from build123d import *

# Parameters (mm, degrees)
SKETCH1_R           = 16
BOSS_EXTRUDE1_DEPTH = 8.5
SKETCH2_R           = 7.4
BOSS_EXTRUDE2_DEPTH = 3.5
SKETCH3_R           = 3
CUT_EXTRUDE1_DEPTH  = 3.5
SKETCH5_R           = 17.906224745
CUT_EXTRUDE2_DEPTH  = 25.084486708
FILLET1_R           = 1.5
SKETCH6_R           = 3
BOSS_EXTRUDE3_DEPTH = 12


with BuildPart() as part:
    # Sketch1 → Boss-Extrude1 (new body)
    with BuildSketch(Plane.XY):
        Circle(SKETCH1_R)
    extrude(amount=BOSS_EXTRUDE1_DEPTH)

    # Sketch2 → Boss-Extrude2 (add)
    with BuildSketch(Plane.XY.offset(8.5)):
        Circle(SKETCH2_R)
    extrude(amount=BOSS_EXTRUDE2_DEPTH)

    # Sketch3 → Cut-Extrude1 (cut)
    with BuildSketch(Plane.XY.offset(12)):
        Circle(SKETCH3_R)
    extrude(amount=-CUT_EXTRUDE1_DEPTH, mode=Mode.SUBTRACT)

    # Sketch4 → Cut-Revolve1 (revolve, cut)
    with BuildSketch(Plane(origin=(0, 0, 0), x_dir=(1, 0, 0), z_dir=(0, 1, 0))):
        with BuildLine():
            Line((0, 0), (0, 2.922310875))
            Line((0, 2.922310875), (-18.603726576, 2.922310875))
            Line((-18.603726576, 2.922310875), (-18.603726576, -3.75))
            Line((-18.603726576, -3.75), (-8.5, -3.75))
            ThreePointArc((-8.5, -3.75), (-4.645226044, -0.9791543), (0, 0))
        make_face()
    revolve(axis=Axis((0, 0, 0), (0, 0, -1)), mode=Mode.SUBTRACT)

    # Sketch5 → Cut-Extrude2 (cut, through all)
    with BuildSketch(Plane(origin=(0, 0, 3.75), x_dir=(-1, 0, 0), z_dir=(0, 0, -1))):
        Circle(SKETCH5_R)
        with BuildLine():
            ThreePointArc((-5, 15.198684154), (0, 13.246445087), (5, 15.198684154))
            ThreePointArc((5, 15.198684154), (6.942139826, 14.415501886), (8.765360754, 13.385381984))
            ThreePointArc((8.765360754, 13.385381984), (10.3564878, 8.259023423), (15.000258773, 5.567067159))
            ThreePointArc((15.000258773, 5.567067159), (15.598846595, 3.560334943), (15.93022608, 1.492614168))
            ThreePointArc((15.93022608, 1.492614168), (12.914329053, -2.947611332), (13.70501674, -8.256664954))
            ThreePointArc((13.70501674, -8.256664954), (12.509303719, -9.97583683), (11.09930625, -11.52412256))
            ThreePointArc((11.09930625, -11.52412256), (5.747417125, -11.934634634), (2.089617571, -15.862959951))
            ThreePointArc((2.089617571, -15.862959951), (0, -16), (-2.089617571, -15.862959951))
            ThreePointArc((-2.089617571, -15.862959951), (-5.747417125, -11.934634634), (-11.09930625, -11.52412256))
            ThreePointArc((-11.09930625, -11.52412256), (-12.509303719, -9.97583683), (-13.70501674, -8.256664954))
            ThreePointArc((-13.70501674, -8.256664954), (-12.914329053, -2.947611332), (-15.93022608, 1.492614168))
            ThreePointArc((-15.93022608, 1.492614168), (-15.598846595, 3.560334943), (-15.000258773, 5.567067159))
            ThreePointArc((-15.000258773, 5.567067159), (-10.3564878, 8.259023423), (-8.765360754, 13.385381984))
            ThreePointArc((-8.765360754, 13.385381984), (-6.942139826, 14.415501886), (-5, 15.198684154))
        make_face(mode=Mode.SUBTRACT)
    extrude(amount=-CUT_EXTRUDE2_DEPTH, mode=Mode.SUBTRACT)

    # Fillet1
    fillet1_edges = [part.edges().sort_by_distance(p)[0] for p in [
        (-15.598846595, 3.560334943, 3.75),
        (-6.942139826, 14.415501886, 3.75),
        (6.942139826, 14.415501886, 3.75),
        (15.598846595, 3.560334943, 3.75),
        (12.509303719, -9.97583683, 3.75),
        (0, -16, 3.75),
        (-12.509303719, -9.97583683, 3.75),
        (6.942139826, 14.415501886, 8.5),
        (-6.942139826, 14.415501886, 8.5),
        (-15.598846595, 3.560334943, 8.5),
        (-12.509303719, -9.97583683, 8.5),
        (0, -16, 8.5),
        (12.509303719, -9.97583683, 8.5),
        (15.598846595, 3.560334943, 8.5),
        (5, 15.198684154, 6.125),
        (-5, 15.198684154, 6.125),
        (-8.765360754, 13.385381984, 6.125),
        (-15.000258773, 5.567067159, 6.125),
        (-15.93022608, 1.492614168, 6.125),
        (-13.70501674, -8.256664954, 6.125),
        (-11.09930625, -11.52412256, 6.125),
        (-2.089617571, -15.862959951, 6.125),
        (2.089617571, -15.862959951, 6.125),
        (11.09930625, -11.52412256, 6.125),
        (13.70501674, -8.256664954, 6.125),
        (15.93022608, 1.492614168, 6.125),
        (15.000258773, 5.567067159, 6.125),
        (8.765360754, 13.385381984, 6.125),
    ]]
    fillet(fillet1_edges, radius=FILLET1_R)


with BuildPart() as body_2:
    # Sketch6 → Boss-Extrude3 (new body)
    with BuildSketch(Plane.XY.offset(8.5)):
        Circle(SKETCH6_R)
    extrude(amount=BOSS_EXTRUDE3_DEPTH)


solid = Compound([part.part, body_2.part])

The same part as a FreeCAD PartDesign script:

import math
import FreeCAD as App
import Part
import Sketcher

V = App.Vector


def edges_at(feature, points):
    """Names of the edges that pass closest to the given points."""
    edges = feature.Shape.Edges
    near = lambda p: min(range(len(edges)), key=lambda i: edges[i].distToShape(Part.Vertex(*p))[0])
    return sorted({f"Edge{near(p) + 1}" for p in points})

doc = App.newDocument("Part")
body = doc.addObject("PartDesign::Body", "Body")

# Sketch on XY plane
sketch1 = body.newObject("Sketcher::SketchObject", "Sketch")
sketch1.AttachmentSupport = (doc.getObject("XY_Plane"), [""])
sketch1.MapMode = "FlatFace"
sketch1.addGeometry(Part.Circle(V(0, 0, 0), V(0, 0, 1), 16), False)
sketch1.addConstraint([
    Sketcher.Constraint("Coincident", 0, 3, -1, 1),
    Sketcher.Constraint("Diameter", 0, 32.0),
])
pad1 = body.newObject("PartDesign::Pad", "Pad")
pad1.Profile = sketch1
pad1.Length = 8.5

# Sketch on XY plane
sketch2 = body.newObject("Sketcher::SketchObject", "Sketch001")
sketch2.AttachmentSupport = (doc.getObject("XY_Plane"), [""])
sketch2.MapMode = "FlatFace"
sketch2.AttachmentOffset = App.Placement(V(0, 0, 8.5), App.Rotation())
sketch2.addGeometry(Part.Circle(V(0, 0, 0), V(0, 0, 1), 7), False)
sketch2.addConstraint([
    Sketcher.Constraint("Coincident", 0, 3, -1, 1),
    Sketcher.Constraint("Diameter", 0, 14.8),
])
pad2 = body.newObject("PartDesign::Pad", "Pad001")
pad2.Profile = sketch2
pad2.Length = 3.5

# Sketch on XY plane
sketch3 = body.newObject("Sketcher::SketchObject", "Sketch002")
sketch3.AttachmentSupport = (doc.getObject("XY_Plane"), [""])
sketch3.MapMode = "FlatFace"
sketch3.AttachmentOffset = App.Placement(V(0, 0, 12), App.Rotation())
sketch3.addGeometry(Part.Circle(V(0, 0, 0), V(0, 0, 1), 3), False)
sketch3.addConstraint([
    Sketcher.Constraint("Coincident", 0, 3, -1, 1),
    Sketcher.Constraint("Diameter", 0, 6.0),
])
pocket1 = body.newObject("PartDesign::Pocket", "Pocket")
pocket1.Profile = sketch3
pocket1.Length = 3.5

# Sketch on XZ plane
sketch4 = body.newObject("Sketcher::SketchObject", "Sketch003")
sketch4.AttachmentSupport = (doc.getObject("XZ_Plane"), [""])
sketch4.MapMode = "FlatFace"
sketch4.addGeometry([
    Part.LineSegment(V(0, 0, 0), V(0, -2.9, 0)),  # 0
    Part.LineSegment(V(0, -2.9, 0), V(-18.6, -2.9, 0)),  # 1
    Part.LineSegment(V(-18.6, -2.9, 0), V(-18.6, 3.8, 0)),  # 2
    Part.LineSegment(V(-18.6, 3.8, 0), V(-8.5, 3.8, 0)),  # 3
    Part.ArcOfCircle(Part.Circle(V(0, 11.5, 0), V(0, 0, 1), 11.5), math.radians(-138), math.radians(-90)),  # 4
], False)
sketch4.addConstraint([
    Sketcher.Constraint("Coincident", 0, 2, 1, 1),
    Sketcher.Constraint("Coincident", 1, 2, 2, 1),
    Sketcher.Constraint("Coincident", 2, 2, 3, 1),
    Sketcher.Constraint("Coincident", 3, 2, 4, 1),
    Sketcher.Constraint("Coincident", 4, 2, 0, 1),
    Sketcher.Constraint("Vertical", 0),
    Sketcher.Constraint("Horizontal", 1),
    Sketcher.Constraint("Vertical", 2),
    Sketcher.Constraint("Horizontal", 3),
    Sketcher.Constraint("Coincident", 4, 2, -1, 1),
    Sketcher.Constraint("PointOnObject", 4, 3, -2),
    Sketcher.Constraint("DistanceX", 3, 2, -1, 1, 8.5),
    Sketcher.Constraint("DistanceY", -1, 1, 2, 2, 3.75),
    Sketcher.Constraint("DistanceY", 0, 2, 0, 1, 2.922311),
    Sketcher.Constraint("DistanceX", 1, 2, 1, 1, 18.603727),
])
groove = body.newObject("PartDesign::Groove", "Groove")
groove.Profile = sketch4
groove.ReferenceAxis = (sketch4, ["V_Axis"])
groove.Angle = 360

# Sketch on XY plane
sketch5 = body.newObject("Sketcher::SketchObject", "Sketch004")
sketch5.AttachmentSupport = (doc.getObject("XY_Plane"), [""])
sketch5.MapMode = "FlatFace"
sketch5.AttachmentOffset = App.Placement(V(0, 0, 3.75), App.Rotation())
sketch5.addGeometry([
    Part.Circle(V(0, 0, 0), V(0, 0, 1), 17.9),  # 0
    Part.ArcOfCircle(Part.Circle(V(0, 0, 0), V(0, 0, 1), 16), math.radians(56.78), math.radians(71.79)),  # 1
    Part.ArcOfCircle(Part.Circle(V(0, 20.6, 0), V(0, 0, 1), 7.4), math.radians(-133), math.radians(-47)),  # 2
    Part.ArcOfCircle(Part.Circle(V(0, 0, 0), V(0, 0, 1), 16), math.radians(108.21), math.radians(123.22)),  # 3
    Part.ArcOfCircle(Part.Circle(V(-16.1, 12.9, 0), V(0, 0, 1), 7.4), math.radians(-81), math.radians(4)),  # 4
    Part.ArcOfCircle(Part.Circle(V(0, 0, 0), V(0, 0, 1), 16), math.radians(159.64), math.radians(174.65)),  # 5
    Part.ArcOfCircle(Part.Circle(V(-20.1, -4.6, 0), V(0, 0, 1), 7.4), math.radians(-30), math.radians(56)),  # 6
    Part.ArcOfCircle(Part.Circle(V(0, 0, 0), V(0, 0, 1), 16), math.radians(-148.93), math.radians(-133.92)),  # 7
    Part.ArcOfCircle(Part.Circle(V(-8.9, -18.6, 0), V(0, 0, 1), 7.4), math.radians(22), math.radians(107)),  # 8
    Part.ArcOfCircle(Part.Circle(V(0, 0, 0), V(0, 0, 1), 16), math.radians(-97.5), math.radians(-82.5)),  # 9
    Part.ArcOfCircle(Part.Circle(V(8.9, -18.6, 0), V(0, 0, 1), 7.4), math.radians(73), math.radians(158)),  # 10
    Part.ArcOfCircle(Part.Circle(V(0, 0, 0), V(0, 0, 1), 16), math.radians(-46.08), math.radians(-31.07)),  # 11
    Part.ArcOfCircle(Part.Circle(V(20.1, -4.6, 0), V(0, 0, 1), 7.4), math.radians(124), math.radians(210)),  # 12
    Part.ArcOfCircle(Part.Circle(V(0, 0, 0), V(0, 0, 1), 16), math.radians(5.35), math.radians(20.36)),  # 13
    Part.ArcOfCircle(Part.Circle(V(16.1, 12.9, 0), V(0, 0, 1), 7.4), math.radians(176), math.radians(261)),  # 14
], False)
sketch5.addConstraint([
    Sketcher.Constraint("Coincident", 1, 2, 2, 2),
    Sketcher.Constraint("Coincident", 2, 1, 3, 1),
    Sketcher.Constraint("Coincident", 3, 2, 4, 2),
    Sketcher.Constraint("Coincident", 4, 1, 5, 1),
    Sketcher.Constraint("Coincident", 5, 2, 6, 2),
    Sketcher.Constraint("Coincident", 6, 1, 7, 1),
    Sketcher.Constraint("Coincident", 7, 2, 8, 2),
    Sketcher.Constraint("Coincident", 8, 1, 9, 1),
    Sketcher.Constraint("Coincident", 9, 2, 10, 2),
    Sketcher.Constraint("Coincident", 10, 1, 11, 1),
    Sketcher.Constraint("Coincident", 11, 2, 12, 2),
    Sketcher.Constraint("Coincident", 12, 1, 13, 1),
    Sketcher.Constraint("Coincident", 13, 2, 14, 2),
    Sketcher.Constraint("Coincident", 14, 1, 1, 1),
    Sketcher.Constraint("Coincident", 0, 3, -1, 1),
    Sketcher.Constraint("Coincident", 1, 3, -1, 1),
    Sketcher.Constraint("Coincident", 3, 3, -1, 1),
    Sketcher.Constraint("Coincident", 5, 3, -1, 1),
    Sketcher.Constraint("Coincident", 7, 3, -1, 1),
    Sketcher.Constraint("Coincident", 9, 3, -1, 1),
    Sketcher.Constraint("Coincident", 11, 3, -1, 1),
    Sketcher.Constraint("Coincident", 13, 3, -1, 1),
    Sketcher.Constraint("Equal", 1, 3),
    Sketcher.Constraint("Equal", 2, 4),
    Sketcher.Constraint("Equal", 3, 5),
    Sketcher.Constraint("Equal", 4, 6),
    Sketcher.Constraint("Equal", 5, 7),
    Sketcher.Constraint("Equal", 6, 8),
    Sketcher.Constraint("Equal", 7, 9),
    Sketcher.Constraint("Equal", 8, 10),
    Sketcher.Constraint("Equal", 9, 11),
    Sketcher.Constraint("Equal", 10, 12),
    Sketcher.Constraint("Equal", 11, 13),
    Sketcher.Constraint("Equal", 12, 14),
    Sketcher.Constraint("Symmetric", 8, 3, 10, 3, -2),
    Sketcher.Constraint("Symmetric", 6, 3, 12, 3, -2),
    Sketcher.Constraint("Symmetric", 4, 3, 14, 3, -2),
    Sketcher.Constraint("PointOnObject", 2, 3, -2),
    Sketcher.Constraint("Radius", 1, 16.0),
    Sketcher.Constraint("DistanceX", -1, 1, 1, 2, 5.0),
    Sketcher.Constraint("Diameter", 0, 35.812449),
    Sketcher.Constraint("Radius", 2, 7.379024),
    Sketcher.Constraint("DistanceY", 6, 3, -1, 1, 4.589599),
    Sketcher.Constraint("DistanceY", 4, 3, 2, 3, 7.765699),
    Sketcher.Constraint("DistanceX", 4, 1, 3, 2, 6.234898),
    Sketcher.Constraint("DistanceX", 6, 1, 8, 1, 11.615399),
    Sketcher.Constraint("DistanceY", 8, 1, -1, 1, 15.86296),
    Sketcher.Constraint("DistanceX", 6, 3, 8, 3, 11.15929),
])
pocket2 = body.newObject("PartDesign::Pocket", "Pocket001")
pocket2.Profile = sketch5
pocket2.Type = "ThroughAll"
pocket2.Reversed = True
doc.recompute()

fillet = body.newObject("PartDesign::Fillet", "Fillet")
fillet.Base = (pocket2, edges_at(pocket2, [
    (-15.599, 3.56, 3.75),
    (-6.942, 14.416, 3.75),
    (6.942, 14.416, 3.75),
    (15.599, 3.56, 3.75),
    (12.509, -9.976, 3.75),
    (0, -16, 3.75),
    (-12.509, -9.976, 3.75),
    (6.942, 14.416, 8.5),
    (-6.942, 14.416, 8.5),
    (-15.599, 3.56, 8.5),
    (-12.509, -9.976, 8.5),
    (0, -16, 8.5),
    (12.509, -9.976, 8.5),
    (15.599, 3.56, 8.5),
    (5, 15.199, 6.125),
    (-5, 15.199, 6.125),
    (-8.765, 13.385, 6.125),
    (-15, 5.567, 6.125),
    (-15.93, 1.493, 6.125),
    (-13.705, -8.257, 6.125),
    (-11.099, -11.524, 6.125),
    (-2.09, -15.863, 6.125),
    (2.09, -15.863, 6.125),
    (11.099, -11.524, 6.125),
    (13.705, -8.257, 6.125),
    (15.93, 1.493, 6.125),
    (15, 5.567, 6.125),
    (8.765, 13.385, 6.125),
]))
fillet.Radius = 1.5
body2 = doc.addObject("PartDesign::Body", "Body001")

# Sketch on XY plane
sketch6 = body2.newObject("Sketcher::SketchObject", "Sketch005")
sketch6.AttachmentSupport = (doc.getObject("XY_Plane001"), [""])
sketch6.MapMode = "FlatFace"
sketch6.AttachmentOffset = App.Placement(V(0, 0, 8.5), App.Rotation())
sketch6.addGeometry(Part.Circle(V(0, 0, 0), V(0, 0, 1), 3), False)
sketch6.addConstraint([
    Sketcher.Constraint("Coincident", 0, 3, -1, 1),
    Sketcher.Constraint("Diameter", 0, 6.0),
])
pad3 = body2.newObject("PartDesign::Pad", "Pad002")
pad3.Profile = sketch6
pad3.Length = 12

doc.recompute()
